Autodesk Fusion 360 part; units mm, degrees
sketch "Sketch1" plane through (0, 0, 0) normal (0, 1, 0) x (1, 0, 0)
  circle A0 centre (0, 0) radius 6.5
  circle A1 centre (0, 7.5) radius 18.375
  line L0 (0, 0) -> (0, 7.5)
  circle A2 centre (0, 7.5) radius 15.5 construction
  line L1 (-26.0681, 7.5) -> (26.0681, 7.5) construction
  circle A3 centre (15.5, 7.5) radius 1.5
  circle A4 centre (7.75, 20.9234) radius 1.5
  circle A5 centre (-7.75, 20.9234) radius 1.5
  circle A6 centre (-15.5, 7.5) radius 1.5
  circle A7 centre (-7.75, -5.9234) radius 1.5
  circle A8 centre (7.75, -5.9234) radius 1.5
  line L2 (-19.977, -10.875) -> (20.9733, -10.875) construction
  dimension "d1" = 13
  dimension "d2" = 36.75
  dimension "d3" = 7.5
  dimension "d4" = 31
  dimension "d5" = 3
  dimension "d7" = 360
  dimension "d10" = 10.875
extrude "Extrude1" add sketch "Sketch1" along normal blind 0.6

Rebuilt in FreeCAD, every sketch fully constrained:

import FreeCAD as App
import Part
import Sketcher
from FreeCAD import Vector
Q = App.Units.Quantity

doc = App.newDocument("Part")
body = doc.addObject("PartDesign::Body", "Body")

# Sketch on XZ plane
sketch1 = body.newObject("Sketcher::SketchObject", "Sketch")
sketch1.AttachmentSupport = (doc.getObject("XZ_Plane"), [""])
sketch1.MapMode = "FlatFace"
sketch1.addGeometry(Part.Circle(Vector(0, -7.5, 0), Vector(0, 0, 1), 18.375), False)
sketch1.addGeometry(Part.Circle(Vector(-7.75, 5.9234, 0), Vector(0, 0, 1), 1.5), False)
sketch1.addGeometry(Part.Circle(Vector(7.75, 5.9234, 0), Vector(0, 0, 1), 1.5), False)
sketch1.addGeometry(Part.Circle(Vector(0, 0, 0), Vector(0, 0, 1), 6.5), False)
sketch1.addGeometry(Part.Circle(Vector(-15.5, -7.5, 0), Vector(0, 0, 1), 1.5), False)
sketch1.addGeometry(Part.Circle(Vector(-7.75, -20.9234, 0), Vector(0, 0, 1), 1.5), False)
sketch1.addGeometry(Part.Circle(Vector(15.5, -7.5, 0), Vector(0, 0, 1), 1.5), False)
sketch1.addGeometry(Part.Circle(Vector(7.75, -20.9234, 0), Vector(0, 0, 1), 1.5), False)
sketch1.addConstraint(Sketcher.Constraint("Coincident", 3, 3, -1, 1))
sketch1.addConstraint(Sketcher.Constraint("Equal", 1, 2))
sketch1.addConstraint(Sketcher.Constraint("Equal", 2, 4))
sketch1.addConstraint(Sketcher.Constraint("Equal", 4, 5))
sketch1.addConstraint(Sketcher.Constraint("Equal", 5, 6))
sketch1.addConstraint(Sketcher.Constraint("Equal", 6, 7))
sketch1.addConstraint(Sketcher.Constraint("Symmetric", 1, 3, 2, 3, -2))
sketch1.addConstraint(Sketcher.Constraint("Symmetric", 4, 3, 6, 3, -2))
sketch1.addConstraint(Sketcher.Constraint("Symmetric", 5, 3, 7, 3, -2))
sketch1.addConstraint(Sketcher.Constraint("PointOnObject", 0, 3, -2))
sketch1.addConstraint(Sketcher.Constraint("Horizontal", 0, 3, 4, 3))
sketch1.addConstraint(Sketcher.Constraint("Vertical", 1, 3, 5, 3))
sketch1.addConstraint(Sketcher.Constraint("Diameter", 1, Q("3 mm")))
sketch1.addConstraint(Sketcher.Constraint("Diameter", 3, Q("13 mm")))
sketch1.addConstraint(Sketcher.Constraint("Diameter", 0, Q("36.75 mm")))
sketch1.addConstraint(Sketcher.Constraint("DistanceY", 0, 3, -1, 1, Q("7.5 mm")))
sketch1.addConstraint(Sketcher.Constraint("DistanceX", 4, 3, -1, 1, Q("15.5 mm")))
sketch1.addConstraint(Sketcher.Constraint("DistanceX", 1, 3, 2, 3, Q("15.5 mm")))
sketch1.addConstraint(Sketcher.Constraint("DistanceY", -1, 1, 1, 3, Q("5.9234 mm")))
sketch1.addConstraint(Sketcher.Constraint("DistanceY", 5, 3, -1, 1, Q("20.9234 mm")))
pad1 = body.newObject("PartDesign::Pad", "Pad")
pad1.Profile = sketch1
pad1.Length = 0.6
pad1.Reversed = True

doc.recompute()
